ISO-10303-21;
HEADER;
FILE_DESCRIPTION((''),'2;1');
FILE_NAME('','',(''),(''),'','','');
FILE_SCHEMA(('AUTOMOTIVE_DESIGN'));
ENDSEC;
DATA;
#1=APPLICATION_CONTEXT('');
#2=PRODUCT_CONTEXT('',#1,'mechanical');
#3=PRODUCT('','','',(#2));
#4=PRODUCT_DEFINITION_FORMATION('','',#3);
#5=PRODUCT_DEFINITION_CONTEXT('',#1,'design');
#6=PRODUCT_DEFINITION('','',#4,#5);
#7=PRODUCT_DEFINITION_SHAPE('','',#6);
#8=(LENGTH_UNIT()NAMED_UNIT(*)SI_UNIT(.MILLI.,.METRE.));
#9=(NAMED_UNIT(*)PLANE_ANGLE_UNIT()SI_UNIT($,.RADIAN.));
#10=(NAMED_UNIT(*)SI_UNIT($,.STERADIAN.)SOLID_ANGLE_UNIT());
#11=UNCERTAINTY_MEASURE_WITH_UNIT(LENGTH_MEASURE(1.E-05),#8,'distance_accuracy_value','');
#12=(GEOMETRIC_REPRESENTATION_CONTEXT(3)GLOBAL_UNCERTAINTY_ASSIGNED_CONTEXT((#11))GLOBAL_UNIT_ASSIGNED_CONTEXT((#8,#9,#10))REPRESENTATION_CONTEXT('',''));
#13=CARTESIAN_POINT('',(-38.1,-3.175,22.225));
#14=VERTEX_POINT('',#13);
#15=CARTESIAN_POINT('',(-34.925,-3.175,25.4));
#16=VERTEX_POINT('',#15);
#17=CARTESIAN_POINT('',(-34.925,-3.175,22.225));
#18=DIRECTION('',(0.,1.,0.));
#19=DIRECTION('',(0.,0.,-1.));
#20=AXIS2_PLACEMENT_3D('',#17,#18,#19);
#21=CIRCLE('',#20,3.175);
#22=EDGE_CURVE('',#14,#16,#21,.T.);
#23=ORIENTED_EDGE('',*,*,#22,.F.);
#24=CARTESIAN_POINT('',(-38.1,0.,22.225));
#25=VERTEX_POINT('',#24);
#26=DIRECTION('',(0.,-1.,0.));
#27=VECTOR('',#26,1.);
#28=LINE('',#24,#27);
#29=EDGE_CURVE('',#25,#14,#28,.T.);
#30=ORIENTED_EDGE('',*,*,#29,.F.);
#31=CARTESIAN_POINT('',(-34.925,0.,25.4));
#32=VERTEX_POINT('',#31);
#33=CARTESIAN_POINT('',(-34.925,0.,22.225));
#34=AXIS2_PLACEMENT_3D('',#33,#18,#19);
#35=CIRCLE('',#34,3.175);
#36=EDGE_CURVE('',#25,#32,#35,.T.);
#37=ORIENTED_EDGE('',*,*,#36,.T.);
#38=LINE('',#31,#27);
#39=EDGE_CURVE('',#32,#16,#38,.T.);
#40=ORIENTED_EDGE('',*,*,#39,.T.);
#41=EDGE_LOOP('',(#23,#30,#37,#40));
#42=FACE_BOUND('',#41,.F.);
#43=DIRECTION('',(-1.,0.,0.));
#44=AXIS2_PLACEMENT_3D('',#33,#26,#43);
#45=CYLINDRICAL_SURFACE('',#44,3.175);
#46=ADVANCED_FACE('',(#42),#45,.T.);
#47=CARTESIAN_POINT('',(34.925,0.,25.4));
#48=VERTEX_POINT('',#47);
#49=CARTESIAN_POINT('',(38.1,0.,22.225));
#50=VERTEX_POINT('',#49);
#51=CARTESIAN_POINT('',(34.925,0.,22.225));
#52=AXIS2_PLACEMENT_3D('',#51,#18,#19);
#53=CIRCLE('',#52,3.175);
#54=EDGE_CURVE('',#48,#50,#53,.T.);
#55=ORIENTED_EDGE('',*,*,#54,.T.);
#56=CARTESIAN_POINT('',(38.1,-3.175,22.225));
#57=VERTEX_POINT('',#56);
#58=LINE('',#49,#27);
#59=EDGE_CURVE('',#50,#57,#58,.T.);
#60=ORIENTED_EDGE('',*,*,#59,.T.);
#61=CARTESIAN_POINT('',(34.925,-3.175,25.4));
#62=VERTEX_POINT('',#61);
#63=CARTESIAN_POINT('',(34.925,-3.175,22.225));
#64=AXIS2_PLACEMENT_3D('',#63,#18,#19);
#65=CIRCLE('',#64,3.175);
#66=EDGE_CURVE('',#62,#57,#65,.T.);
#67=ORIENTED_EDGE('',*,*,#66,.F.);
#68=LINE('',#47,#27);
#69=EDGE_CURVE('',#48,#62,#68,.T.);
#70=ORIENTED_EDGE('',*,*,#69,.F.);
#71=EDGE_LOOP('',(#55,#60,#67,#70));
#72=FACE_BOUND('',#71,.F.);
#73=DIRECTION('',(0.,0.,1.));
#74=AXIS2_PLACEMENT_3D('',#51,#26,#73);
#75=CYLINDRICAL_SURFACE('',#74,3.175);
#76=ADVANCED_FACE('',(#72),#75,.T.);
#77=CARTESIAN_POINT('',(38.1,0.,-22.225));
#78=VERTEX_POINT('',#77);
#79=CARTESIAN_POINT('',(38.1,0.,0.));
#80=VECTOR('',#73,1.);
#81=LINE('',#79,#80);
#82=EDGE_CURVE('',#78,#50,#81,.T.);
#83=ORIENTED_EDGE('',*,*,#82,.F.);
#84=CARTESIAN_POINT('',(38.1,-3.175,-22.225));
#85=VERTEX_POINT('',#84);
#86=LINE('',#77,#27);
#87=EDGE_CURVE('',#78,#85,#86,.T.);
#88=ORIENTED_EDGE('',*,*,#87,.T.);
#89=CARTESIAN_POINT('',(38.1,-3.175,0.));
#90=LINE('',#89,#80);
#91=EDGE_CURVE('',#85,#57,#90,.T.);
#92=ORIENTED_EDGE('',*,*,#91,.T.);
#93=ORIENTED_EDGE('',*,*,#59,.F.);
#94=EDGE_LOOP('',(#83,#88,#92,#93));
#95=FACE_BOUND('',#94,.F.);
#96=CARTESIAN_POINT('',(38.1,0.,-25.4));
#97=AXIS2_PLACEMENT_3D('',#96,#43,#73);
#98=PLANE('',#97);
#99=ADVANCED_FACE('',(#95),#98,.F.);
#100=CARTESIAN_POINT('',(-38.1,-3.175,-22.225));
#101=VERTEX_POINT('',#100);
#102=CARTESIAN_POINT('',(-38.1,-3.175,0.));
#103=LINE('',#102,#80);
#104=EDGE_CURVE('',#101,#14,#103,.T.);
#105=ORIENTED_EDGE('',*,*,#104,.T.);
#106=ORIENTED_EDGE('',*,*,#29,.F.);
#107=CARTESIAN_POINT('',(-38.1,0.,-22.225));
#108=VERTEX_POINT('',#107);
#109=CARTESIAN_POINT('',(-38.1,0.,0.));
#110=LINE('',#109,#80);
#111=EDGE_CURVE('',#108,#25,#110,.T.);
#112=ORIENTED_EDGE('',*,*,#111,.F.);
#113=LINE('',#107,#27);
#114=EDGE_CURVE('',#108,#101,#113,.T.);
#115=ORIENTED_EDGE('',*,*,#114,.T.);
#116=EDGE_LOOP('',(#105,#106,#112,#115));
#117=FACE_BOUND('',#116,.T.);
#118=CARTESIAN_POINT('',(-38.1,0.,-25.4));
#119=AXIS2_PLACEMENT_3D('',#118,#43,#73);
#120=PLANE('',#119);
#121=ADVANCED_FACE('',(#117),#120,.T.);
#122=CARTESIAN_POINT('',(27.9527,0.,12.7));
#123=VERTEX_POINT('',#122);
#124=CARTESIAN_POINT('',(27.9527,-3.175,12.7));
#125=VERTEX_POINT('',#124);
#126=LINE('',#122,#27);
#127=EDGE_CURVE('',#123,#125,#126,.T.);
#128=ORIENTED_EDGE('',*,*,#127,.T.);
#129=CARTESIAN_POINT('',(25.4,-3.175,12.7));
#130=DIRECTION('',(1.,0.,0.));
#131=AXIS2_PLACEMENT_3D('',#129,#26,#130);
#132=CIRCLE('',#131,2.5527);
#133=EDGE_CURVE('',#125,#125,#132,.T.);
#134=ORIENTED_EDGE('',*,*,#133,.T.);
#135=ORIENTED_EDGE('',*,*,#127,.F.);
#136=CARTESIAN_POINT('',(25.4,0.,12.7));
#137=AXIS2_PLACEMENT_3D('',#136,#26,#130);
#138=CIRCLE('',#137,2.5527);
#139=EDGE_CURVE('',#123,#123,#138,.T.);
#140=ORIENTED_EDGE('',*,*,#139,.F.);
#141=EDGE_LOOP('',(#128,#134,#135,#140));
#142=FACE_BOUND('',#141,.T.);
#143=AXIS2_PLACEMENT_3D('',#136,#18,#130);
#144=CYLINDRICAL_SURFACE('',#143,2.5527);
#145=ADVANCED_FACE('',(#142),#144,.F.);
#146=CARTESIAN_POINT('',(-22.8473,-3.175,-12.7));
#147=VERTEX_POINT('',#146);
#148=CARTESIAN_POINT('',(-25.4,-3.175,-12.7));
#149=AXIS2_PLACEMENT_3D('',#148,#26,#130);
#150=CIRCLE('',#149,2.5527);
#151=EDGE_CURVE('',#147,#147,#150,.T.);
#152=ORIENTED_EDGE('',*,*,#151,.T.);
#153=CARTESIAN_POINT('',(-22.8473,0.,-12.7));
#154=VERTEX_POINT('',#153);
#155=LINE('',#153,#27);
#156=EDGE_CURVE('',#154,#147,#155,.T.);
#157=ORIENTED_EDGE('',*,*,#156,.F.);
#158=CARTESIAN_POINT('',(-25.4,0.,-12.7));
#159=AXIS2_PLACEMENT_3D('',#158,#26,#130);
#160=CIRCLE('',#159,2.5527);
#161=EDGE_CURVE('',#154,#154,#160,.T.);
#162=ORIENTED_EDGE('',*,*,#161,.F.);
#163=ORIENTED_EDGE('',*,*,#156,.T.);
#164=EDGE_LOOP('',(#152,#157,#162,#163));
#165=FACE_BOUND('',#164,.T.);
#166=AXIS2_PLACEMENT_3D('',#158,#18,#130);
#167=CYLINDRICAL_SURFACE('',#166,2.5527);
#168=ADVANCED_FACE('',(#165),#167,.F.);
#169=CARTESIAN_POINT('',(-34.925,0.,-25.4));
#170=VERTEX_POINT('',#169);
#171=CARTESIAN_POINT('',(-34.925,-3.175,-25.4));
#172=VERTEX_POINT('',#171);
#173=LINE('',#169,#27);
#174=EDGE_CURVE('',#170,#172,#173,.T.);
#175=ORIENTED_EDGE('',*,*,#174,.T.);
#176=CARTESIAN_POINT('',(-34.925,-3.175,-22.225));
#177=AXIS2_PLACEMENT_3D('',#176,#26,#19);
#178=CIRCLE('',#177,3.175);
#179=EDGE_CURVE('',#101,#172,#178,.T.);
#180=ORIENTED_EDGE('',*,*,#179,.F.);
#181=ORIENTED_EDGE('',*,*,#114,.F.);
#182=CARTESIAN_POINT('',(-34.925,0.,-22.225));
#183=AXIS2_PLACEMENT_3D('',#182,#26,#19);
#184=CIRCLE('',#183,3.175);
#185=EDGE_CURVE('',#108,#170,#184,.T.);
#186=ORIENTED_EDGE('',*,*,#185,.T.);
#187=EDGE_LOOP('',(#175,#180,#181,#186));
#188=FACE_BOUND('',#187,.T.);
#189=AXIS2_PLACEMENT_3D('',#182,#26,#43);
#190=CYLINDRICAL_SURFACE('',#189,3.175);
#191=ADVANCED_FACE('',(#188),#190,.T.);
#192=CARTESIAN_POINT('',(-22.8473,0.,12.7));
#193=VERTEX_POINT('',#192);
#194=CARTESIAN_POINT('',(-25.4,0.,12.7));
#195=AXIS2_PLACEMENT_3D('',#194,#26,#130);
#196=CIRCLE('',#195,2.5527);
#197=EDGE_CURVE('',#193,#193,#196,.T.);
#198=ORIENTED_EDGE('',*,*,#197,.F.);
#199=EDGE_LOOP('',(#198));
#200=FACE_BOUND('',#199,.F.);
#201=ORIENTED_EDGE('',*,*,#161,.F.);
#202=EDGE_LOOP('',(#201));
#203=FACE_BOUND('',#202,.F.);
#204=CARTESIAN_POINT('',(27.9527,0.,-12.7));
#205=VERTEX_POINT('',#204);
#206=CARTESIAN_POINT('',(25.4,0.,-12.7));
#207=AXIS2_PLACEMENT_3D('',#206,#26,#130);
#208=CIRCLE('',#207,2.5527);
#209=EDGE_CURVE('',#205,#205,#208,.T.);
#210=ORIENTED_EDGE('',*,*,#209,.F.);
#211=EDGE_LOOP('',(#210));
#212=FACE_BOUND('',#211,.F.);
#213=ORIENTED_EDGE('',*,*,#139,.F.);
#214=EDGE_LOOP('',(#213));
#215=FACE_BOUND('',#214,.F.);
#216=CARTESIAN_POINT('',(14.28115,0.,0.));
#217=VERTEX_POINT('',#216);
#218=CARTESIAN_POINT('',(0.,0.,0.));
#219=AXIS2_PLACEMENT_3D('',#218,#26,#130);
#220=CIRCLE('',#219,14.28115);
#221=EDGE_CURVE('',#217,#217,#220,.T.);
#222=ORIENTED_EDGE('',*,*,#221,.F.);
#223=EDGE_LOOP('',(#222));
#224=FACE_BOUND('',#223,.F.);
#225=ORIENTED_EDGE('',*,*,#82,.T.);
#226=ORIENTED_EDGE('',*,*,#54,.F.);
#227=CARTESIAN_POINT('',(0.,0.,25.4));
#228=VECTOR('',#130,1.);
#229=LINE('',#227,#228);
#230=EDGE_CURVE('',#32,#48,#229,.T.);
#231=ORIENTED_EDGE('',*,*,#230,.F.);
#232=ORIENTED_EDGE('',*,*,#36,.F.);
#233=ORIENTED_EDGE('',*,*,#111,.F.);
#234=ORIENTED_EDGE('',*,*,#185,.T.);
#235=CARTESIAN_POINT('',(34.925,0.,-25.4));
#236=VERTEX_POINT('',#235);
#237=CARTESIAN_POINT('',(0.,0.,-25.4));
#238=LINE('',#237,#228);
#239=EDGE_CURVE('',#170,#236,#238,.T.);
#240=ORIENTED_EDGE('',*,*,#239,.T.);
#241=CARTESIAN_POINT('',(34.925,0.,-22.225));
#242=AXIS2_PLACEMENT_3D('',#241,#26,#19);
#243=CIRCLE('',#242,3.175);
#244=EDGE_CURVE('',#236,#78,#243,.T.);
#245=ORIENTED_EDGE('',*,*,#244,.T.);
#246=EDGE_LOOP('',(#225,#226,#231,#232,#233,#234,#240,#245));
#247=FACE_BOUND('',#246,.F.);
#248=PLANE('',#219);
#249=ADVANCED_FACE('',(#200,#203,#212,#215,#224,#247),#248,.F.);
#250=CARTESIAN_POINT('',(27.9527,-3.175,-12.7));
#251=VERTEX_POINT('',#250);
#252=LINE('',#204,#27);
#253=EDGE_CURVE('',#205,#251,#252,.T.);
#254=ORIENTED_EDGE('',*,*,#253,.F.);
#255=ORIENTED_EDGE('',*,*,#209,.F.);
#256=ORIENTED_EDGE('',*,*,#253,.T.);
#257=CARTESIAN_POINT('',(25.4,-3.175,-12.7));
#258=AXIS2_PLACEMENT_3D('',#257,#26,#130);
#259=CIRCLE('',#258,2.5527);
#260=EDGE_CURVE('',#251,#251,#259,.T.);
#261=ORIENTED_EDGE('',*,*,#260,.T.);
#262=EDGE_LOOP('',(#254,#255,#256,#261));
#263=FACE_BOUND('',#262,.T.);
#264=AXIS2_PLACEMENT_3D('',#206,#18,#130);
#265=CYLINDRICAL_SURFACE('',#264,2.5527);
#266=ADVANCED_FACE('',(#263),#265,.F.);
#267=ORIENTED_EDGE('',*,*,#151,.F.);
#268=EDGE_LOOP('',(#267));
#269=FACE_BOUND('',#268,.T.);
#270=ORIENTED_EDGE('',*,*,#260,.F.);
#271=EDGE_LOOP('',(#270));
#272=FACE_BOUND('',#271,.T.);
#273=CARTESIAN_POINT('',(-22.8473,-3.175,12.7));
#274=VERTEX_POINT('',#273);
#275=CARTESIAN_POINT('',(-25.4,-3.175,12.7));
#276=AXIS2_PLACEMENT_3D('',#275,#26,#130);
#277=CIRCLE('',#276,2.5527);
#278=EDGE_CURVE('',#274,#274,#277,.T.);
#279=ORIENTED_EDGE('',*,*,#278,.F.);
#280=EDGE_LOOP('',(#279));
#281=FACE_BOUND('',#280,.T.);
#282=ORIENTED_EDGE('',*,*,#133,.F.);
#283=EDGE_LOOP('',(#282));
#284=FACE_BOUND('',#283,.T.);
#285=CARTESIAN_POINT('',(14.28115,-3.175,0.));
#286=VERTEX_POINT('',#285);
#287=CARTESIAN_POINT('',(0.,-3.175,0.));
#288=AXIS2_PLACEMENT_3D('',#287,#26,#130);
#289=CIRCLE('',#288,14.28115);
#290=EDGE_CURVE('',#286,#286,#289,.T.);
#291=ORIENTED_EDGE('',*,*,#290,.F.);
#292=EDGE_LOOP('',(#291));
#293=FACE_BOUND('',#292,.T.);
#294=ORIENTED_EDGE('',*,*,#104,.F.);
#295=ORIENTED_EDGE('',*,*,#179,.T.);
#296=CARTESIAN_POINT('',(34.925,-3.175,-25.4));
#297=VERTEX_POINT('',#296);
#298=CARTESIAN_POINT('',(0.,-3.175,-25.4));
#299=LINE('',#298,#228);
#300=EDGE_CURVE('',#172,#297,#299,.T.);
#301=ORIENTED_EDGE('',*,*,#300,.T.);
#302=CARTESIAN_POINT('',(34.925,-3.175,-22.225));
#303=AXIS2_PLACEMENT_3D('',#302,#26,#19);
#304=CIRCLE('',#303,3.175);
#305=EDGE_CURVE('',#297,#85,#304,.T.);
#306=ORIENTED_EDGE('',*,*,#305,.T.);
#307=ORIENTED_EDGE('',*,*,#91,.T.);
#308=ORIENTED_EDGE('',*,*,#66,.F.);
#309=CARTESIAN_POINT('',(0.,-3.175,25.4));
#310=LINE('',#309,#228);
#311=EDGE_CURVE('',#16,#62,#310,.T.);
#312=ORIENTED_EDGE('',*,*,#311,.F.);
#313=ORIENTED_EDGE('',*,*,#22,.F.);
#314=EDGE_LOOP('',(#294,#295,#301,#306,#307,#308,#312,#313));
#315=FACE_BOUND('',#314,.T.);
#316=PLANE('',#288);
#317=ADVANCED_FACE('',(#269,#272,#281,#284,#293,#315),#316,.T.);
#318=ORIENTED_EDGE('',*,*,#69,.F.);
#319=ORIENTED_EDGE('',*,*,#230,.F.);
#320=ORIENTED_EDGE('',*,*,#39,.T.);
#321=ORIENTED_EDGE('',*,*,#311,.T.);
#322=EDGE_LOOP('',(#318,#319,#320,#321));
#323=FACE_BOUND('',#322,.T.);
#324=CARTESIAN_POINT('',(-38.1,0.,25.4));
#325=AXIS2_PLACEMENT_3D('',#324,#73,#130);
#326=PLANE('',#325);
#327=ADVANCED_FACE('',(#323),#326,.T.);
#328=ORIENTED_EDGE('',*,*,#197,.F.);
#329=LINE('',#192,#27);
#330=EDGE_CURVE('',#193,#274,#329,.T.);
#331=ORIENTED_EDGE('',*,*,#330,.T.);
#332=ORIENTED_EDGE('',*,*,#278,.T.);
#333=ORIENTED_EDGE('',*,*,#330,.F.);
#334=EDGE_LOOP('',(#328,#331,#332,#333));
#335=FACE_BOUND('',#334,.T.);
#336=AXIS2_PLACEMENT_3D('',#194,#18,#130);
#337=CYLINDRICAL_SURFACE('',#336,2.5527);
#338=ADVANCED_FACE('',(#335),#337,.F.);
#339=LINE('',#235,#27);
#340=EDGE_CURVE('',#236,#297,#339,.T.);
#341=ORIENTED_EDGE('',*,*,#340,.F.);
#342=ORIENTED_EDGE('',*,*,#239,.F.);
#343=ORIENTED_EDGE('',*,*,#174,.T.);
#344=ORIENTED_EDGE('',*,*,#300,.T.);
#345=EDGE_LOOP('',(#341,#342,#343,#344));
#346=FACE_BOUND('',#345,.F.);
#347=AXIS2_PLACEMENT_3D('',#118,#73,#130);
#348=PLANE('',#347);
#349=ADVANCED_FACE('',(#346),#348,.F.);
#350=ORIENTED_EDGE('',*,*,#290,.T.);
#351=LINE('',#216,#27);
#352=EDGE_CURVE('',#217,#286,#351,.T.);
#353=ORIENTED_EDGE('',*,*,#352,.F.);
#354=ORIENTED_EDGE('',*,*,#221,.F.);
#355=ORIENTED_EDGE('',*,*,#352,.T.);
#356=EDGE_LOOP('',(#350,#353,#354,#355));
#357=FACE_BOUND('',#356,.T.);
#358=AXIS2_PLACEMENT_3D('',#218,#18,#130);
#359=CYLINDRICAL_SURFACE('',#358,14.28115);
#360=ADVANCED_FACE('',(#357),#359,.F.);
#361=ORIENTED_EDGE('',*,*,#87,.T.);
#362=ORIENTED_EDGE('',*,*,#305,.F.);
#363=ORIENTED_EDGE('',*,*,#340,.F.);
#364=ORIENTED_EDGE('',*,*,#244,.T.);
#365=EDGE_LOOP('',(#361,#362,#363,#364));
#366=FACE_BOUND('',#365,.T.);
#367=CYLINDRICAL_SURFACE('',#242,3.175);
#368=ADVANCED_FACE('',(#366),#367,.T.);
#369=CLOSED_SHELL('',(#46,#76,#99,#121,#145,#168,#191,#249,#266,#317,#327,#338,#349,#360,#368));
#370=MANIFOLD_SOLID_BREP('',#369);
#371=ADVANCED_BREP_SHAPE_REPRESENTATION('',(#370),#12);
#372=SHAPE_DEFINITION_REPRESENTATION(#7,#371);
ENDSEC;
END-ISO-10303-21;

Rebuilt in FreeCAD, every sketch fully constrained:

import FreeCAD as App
import Part
import Sketcher
from FreeCAD import Vector
Q = App.Units.Quantity


def edges_at(feature, points):
    """Names of the edges that pass closest to the given points."""
    edges = feature.Shape.Edges
    near = lambda p: min(range(len(edges)), key=lambda i: edges[i].distToShape(Part.Vertex(*p))[0])
    return sorted({f"Edge{near(p) + 1}" for p in points})

doc = App.newDocument("Part")
body = doc.addObject("PartDesign::Body", "Body")

sketch1 = body.newObject("Sketcher::SketchObject", "Sketch")
sketch1.AttachmentSupport = (doc.getObject("XZ_Plane"), [""])
sketch1.MapMode = "FlatFace"
sketch1.addGeometry(Part.LineSegment(Vector(-38.1, 25.4, 0), Vector(-38.1, -25.4, 0)), False)
sketch1.addGeometry(Part.LineSegment(Vector(-38.1, -25.4, 0), Vector(38.1, -25.4, 0)), False)
sketch1.addGeometry(Part.LineSegment(Vector(38.1, -25.4, 0), Vector(38.1, 25.4, 0)), False)
sketch1.addGeometry(Part.LineSegment(Vector(38.1, 25.4, 0), Vector(-38.1, 25.4, 0)), False)
sketch1.addGeometry(Part.Circle(Vector(-25.4, -12.7, 0), Vector(0, 0, 1), 2.6), False)
sketch1.addGeometry(Part.Circle(Vector(25.4, -12.7, 0), Vector(0, 0, 1), 2.6), False)
sketch1.addGeometry(Part.Circle(Vector(-25.4, 12.7, 0), Vector(0, 0, 1), 2.6), False)
sketch1.addGeometry(Part.Circle(Vector(0, 0, 0), Vector(0, 0, 1), 14.3), False)
sketch1.addGeometry(Part.Circle(Vector(25.4, 12.7, 0), Vector(0, 0, 1), 2.6), False)
sketch1.addConstraint(Sketcher.Constraint("Coincident", 0, 2, 1, 1))
sketch1.addConstraint(Sketcher.Constraint("Coincident", 1, 2, 2, 1))
sketch1.addConstraint(Sketcher.Constraint("Coincident", 2, 2, 3, 1))
sketch1.addConstraint(Sketcher.Constraint("Coincident", 3, 2, 0, 1))
sketch1.addConstraint(Sketcher.Constraint("Vertical", 0))
sketch1.addConstraint(Sketcher.Constraint("Horizontal", 1))
sketch1.addConstraint(Sketcher.Constraint("Vertical", 2))
sketch1.addConstraint(Sketcher.Constraint("Horizontal", 3))
sketch1.addConstraint(Sketcher.Constraint("Coincident", 7, 3, -1, 1))
sketch1.addConstraint(Sketcher.Constraint("Equal", 4, 5))
sketch1.addConstraint(Sketcher.Constraint("Equal", 5, 6))
sketch1.addConstraint(Sketcher.Constraint("Equal", 6, 8))
sketch1.addConstraint(Sketcher.Constraint("Symmetric", 5, 3, 6, 3, -1, 1))
sketch1.addConstraint(Sketcher.Constraint("Symmetric", 4, 3, 8, 3, -1, 1))
sketch1.addConstraint(Sketcher.Constraint("Symmetric", 0, 2, 2, 2, -1, 1))
sketch1.addConstraint(Sketcher.Constraint("Symmetric", 4, 3, 5, 3, -2))
sketch1.addConstraint(Sketcher.Constraint("DistanceX", 1, 1, 1, 2, Q("3 in")))
sketch1.addConstraint(Sketcher.Constraint("DistanceY", 0, 2, 0, 1, Q("2 in")))
sketch1.addConstraint(Sketcher.Constraint("Diameter", 4, Q("0.201 in")))
sketch1.addConstraint(Sketcher.Constraint("DistanceX", 4, 3, -1, 1, Q("1 in")))
sketch1.addConstraint(Sketcher.Constraint("DistanceY", 4, 3, 6, 3, Q("1 in")))
sketch1.addConstraint(Sketcher.Constraint("Diameter", 7, Q("1.1245 in")))
pad1 = body.newObject("PartDesign::Pad", "Pad")
pad1.Profile = sketch1
pad1.Length = Q("0.125 in")
doc.recompute()

fillet = body.newObject("PartDesign::Fillet", "Fillet")
fillet.Base = (pad1, edges_at(pad1, [
    (-38.1, -1.587, 25.4),
    (-38.1, -1.587, -25.4),
    (38.1, -1.587, -25.4),
    (38.1, -1.587, 25.4),
]))
fillet.Radius = Q("0.125 in")

doc.recompute()
